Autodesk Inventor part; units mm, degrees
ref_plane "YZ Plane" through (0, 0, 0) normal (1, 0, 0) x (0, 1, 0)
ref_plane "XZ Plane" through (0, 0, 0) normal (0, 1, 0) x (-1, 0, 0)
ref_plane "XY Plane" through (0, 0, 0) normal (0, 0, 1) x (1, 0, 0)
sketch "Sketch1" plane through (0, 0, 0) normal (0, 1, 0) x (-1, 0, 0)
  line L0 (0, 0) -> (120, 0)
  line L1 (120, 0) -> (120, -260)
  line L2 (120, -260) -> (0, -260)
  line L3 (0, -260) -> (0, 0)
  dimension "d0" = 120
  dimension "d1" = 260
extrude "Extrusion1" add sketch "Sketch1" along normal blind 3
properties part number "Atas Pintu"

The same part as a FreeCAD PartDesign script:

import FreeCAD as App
import Part
import Sketcher

V = App.Vector

doc = App.newDocument("Part")
body = doc.addObject("PartDesign::Body", "Body")

# Sketch on XZ plane
sketch1 = body.newObject("Sketcher::SketchObject", "Sketch")
sketch1.AttachmentSupport = (doc.getObject("XZ_Plane"), [""])
sketch1.MapMode = "FlatFace"
sketch1.addGeometry(Part.LineSegment(V(-120, 0, 0), V(0, 0, 0)), False)
sketch1.addGeometry(Part.LineSegment(V(0, 0, 0), V(0, -260, 0)), False)
sketch1.addGeometry(Part.LineSegment(V(0, -260, 0), V(-120, -260, 0)), False)
sketch1.addGeometry(Part.LineSegment(V(-120, -260, 0), V(-120, 0, 0)), False)
sketch1.addConstraint(Sketcher.Constraint("Coincident", 0, 2, 1, 1))
sketch1.addConstraint(Sketcher.Constraint("Coincident", 1, 2, 2, 1))
sketch1.addConstraint(Sketcher.Constraint("Coincident", 2, 2, 3, 1))
sketch1.addConstraint(Sketcher.Constraint("Coincident", 3, 2, 0, 1))
sketch1.addConstraint(Sketcher.Constraint("Horizontal", 0))
sketch1.addConstraint(Sketcher.Constraint("Vertical", 1))
sketch1.addConstraint(Sketcher.Constraint("Horizontal", 2))
sketch1.addConstraint(Sketcher.Constraint("Vertical", 3))
sketch1.addConstraint(Sketcher.Constraint("Coincident", 0, 2, -1, 1))
sketch1.addConstraint(Sketcher.Constraint("DistanceX", 0, 1, 0, 2, 120.0))
sketch1.addConstraint(Sketcher.Constraint("DistanceY", 1, 2, 1, 1, 260.0))
pad1 = body.newObject("PartDesign::Pad", "Pad")
pad1.Profile = sketch1
pad1.Length = 3
pad1.Reversed = True

doc.recompute()
